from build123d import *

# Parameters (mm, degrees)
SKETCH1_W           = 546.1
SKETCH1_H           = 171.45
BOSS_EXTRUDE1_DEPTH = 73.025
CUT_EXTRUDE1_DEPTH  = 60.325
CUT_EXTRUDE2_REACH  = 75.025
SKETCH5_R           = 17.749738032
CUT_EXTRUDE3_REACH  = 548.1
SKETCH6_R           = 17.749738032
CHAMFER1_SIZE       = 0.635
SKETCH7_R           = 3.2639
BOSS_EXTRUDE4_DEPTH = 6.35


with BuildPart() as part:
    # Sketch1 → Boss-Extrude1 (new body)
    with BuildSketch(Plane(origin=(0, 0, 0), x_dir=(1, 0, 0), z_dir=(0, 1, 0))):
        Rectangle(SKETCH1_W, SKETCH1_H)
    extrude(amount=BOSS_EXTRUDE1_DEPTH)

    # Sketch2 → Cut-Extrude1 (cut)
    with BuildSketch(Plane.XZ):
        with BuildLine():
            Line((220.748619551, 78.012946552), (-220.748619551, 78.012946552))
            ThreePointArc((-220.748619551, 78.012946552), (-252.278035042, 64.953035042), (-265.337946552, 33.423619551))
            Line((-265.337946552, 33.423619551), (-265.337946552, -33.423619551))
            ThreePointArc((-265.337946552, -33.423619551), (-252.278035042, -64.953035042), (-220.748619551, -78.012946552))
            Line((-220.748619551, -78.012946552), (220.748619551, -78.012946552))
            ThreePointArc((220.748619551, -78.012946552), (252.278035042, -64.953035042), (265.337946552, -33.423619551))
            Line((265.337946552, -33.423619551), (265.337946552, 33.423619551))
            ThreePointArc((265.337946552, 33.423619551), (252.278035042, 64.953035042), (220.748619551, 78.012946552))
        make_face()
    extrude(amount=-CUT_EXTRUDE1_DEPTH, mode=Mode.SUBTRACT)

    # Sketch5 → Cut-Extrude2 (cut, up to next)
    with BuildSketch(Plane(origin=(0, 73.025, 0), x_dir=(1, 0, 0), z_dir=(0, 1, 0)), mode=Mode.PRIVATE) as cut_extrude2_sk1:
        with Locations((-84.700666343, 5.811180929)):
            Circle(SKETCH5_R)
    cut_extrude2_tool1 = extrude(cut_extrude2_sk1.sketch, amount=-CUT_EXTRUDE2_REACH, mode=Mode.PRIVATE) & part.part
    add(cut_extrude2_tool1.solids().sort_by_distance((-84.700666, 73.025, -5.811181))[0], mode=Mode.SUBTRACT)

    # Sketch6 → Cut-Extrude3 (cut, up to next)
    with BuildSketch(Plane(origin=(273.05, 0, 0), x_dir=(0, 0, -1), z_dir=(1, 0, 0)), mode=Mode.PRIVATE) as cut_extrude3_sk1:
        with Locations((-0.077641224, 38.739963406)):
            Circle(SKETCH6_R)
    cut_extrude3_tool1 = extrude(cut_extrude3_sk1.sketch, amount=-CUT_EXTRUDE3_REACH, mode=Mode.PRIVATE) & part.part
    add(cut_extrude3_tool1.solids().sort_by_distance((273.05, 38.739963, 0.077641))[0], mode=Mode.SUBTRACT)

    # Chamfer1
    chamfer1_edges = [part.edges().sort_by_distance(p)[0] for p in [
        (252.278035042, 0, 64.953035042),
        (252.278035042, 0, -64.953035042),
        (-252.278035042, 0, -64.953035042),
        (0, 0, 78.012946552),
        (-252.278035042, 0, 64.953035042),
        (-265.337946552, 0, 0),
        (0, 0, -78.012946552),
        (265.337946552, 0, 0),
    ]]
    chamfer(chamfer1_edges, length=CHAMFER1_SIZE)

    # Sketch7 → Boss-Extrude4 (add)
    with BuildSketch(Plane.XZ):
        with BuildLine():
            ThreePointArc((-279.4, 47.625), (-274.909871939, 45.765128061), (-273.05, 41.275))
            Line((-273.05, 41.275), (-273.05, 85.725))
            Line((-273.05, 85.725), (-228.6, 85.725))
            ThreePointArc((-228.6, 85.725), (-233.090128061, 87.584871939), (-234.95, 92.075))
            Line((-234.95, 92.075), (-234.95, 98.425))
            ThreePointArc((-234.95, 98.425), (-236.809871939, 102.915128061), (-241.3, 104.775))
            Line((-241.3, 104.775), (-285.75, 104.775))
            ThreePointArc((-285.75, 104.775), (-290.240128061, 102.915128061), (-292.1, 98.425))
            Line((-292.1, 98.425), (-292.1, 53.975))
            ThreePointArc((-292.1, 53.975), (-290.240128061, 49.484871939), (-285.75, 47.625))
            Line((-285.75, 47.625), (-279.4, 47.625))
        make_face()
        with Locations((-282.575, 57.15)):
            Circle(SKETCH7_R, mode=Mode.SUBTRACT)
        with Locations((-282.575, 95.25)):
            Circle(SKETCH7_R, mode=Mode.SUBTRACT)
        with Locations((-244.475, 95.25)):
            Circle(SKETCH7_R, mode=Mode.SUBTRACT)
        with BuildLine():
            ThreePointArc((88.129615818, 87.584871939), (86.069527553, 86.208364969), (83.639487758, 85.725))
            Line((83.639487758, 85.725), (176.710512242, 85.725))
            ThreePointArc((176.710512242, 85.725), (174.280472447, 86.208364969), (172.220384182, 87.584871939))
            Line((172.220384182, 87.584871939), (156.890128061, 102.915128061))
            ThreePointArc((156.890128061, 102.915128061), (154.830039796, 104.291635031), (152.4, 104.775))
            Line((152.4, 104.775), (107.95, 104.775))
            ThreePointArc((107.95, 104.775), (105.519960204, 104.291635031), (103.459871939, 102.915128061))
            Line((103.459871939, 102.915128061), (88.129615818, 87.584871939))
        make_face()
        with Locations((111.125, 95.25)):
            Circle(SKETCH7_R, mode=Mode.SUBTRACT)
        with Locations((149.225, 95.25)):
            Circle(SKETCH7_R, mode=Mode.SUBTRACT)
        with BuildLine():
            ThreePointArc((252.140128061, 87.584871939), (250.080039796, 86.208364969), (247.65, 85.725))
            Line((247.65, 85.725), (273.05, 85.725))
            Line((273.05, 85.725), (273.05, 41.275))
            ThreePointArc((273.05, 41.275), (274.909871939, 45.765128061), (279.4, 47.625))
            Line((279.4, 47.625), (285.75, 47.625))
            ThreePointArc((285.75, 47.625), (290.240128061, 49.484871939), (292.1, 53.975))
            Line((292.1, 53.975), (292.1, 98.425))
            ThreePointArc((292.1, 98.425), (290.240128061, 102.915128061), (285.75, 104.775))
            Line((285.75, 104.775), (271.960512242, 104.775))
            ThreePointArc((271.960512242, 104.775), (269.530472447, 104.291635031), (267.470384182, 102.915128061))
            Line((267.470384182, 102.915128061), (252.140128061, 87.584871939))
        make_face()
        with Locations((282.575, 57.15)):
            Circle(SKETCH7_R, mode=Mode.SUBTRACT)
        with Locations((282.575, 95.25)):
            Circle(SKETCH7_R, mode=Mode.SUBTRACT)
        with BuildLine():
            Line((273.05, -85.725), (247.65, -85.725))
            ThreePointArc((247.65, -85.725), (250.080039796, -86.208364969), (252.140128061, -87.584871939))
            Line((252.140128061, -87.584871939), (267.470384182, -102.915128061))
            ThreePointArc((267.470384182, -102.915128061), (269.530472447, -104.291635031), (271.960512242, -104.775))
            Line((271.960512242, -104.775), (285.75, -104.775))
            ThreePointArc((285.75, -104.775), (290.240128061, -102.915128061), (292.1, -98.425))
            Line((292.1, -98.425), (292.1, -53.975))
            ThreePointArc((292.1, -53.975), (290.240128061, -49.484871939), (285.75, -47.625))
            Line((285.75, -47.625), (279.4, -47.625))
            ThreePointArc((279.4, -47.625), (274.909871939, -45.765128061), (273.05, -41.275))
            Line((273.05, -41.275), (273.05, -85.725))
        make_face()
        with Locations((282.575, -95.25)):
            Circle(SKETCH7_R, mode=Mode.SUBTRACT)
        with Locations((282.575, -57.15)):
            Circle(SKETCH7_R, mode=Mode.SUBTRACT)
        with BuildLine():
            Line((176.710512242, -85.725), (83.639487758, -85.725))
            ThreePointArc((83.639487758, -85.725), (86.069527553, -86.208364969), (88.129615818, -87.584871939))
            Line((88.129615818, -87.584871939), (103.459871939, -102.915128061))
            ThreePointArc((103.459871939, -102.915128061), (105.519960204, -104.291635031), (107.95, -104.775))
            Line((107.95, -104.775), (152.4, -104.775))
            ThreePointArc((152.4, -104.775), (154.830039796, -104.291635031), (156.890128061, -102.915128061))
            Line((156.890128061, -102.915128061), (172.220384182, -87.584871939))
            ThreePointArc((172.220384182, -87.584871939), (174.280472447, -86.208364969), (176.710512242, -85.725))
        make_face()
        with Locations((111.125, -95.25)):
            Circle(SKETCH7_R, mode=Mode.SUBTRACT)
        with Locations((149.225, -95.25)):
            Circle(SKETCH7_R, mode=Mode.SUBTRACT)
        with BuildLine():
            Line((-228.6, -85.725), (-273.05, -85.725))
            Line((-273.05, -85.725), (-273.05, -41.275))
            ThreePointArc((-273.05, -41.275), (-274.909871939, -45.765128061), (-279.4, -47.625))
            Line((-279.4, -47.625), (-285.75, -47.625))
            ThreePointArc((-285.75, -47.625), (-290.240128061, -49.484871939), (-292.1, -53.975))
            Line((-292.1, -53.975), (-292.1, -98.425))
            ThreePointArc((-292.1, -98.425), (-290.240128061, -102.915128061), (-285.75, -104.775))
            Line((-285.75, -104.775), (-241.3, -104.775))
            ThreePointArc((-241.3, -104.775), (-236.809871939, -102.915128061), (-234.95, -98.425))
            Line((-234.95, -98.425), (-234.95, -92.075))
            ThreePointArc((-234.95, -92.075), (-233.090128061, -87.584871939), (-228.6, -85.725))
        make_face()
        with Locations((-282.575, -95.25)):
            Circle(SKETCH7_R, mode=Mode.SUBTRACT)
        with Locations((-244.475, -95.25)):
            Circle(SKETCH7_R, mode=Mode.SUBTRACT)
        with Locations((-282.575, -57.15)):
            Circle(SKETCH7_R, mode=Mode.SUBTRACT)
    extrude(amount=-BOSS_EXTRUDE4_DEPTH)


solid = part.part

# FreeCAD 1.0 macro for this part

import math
import FreeCAD as App
import Part
import Sketcher

V = App.Vector
Q = App.Units.Quantity


def edges_at(feature, points):
    """Names of the edges that pass closest to the given points."""
    edges = feature.Shape.Edges
    near = lambda p: min(range(len(edges)), key=lambda i: edges[i].distToShape(Part.Vertex(*p))[0])
    return sorted({f"Edge{near(p) + 1}" for p in points})


def add_polygon(sketch, points):
    """Adds a closed chain of lines whose ends are joined by coincident constraints."""
    first, n = sketch.GeometryCount, len(points)
    for a, b in zip(points, points[1:] + points[:1]):
        sketch.addGeometry(Part.LineSegment(App.Vector(*a, 0), App.Vector(*b, 0)), False)
    for i in range(n):
        sketch.addConstraint(Sketcher.Constraint("Coincident", first + i, 2, first + (i + 1) % n, 1))

doc = App.newDocument("Part")
params = doc.addObject("Spreadsheet::Sheet", "Params")
for row, (alias, value) in enumerate([
    ("sketch1_width", "21.5 in"),
    ("sketch1_height", "6.75 in"),
    ("pad1_length", "2.875 in"),
    ("pocket1_length", "2.375 in"),
    ("chamfer_size", "0.025 in"),
    ("sketch5_width", "1 in"),
    ("sketch5_radius", "0.25 in"),
    ("sketch5_diameter", "0.257 in"),
    ("pad2_length", "0.25 in"),
], start=1):
    params.set(f"A{row}", alias)
    params.set(f"B{row}", "=" + value)
    params.setAlias(f"B{row}", alias)

body = doc.addObject("PartDesign::Body", "Body")

# Sketch on XZ plane
sketch1 = body.newObject("Sketcher::SketchObject", "Sketch")
sketch1.AttachmentSupport = (doc.getObject("XZ_Plane"), [""])
sketch1.MapMode = "FlatFace"
add_polygon(sketch1, [(-273.05, -85.725), (-273.05, 85.725), (273.05, 85.725), (273.05, -85.725)])  # lines 0-3
sketch1.addConstraint([
    Sketcher.Constraint("Vertical", 0),
    Sketcher.Constraint("Horizontal", 1),
    Sketcher.Constraint("Vertical", 2),
    Sketcher.Constraint("Horizontal", 3),
    Sketcher.Constraint("Symmetric", 0, 2, 2, 2, -1, 1),
    Sketcher.Constraint("DistanceX", 1, 1, 1, 2, Q("21.5 in")),
    Sketcher.Constraint("DistanceY", 0, 1, 0, 2, Q("6.75 in")),
])
sketch1.setExpression("Constraints[9]", "Params.sketch1_width")
sketch1.setExpression("Constraints[10]", "Params.sketch1_height")
pad1 = body.newObject("PartDesign::Pad", "Pad")
pad1.Profile = sketch1
pad1.setExpression("Length", "Params.pad1_length")
pad1.Reversed = True

# Sketch on XZ plane
sketch2 = body.newObject("Sketcher::SketchObject", "Sketch001")
sketch2.AttachmentSupport = (doc.getObject("XZ_Plane"), [""])
sketch2.MapMode = "FlatFace"
sketch2.addGeometry([
    Part.LineSegment(V(220.74862, 78.012947, 0), V(-220.74862, 78.012947, 0)),  # 0
    Part.ArcOfCircle(Part.Circle(V(-220.74862, 33.42362, 0), V(0, 0, 1), 44.589327), math.radians(90), math.radians(180)),  # 1
    Part.LineSegment(V(-265.337947, 33.42362, 0), V(-265.337947, -33.42362, 0)),  # 2
    Part.ArcOfCircle(Part.Circle(V(-220.74862, -33.42362, 0), V(0, 0, 1), 44.589327), math.radians(180), math.radians(270)),  # 3
    Part.LineSegment(V(-220.74862, -78.012947, 0), V(220.74862, -78.012947, 0)),  # 4
    Part.ArcOfCircle(Part.Circle(V(220.74862, -33.42362, 0), V(0, 0, 1), 44.589327), math.radians(-90), math.radians(0)),  # 5
    Part.LineSegment(V(265.337947, -33.42362, 0), V(265.337947, 33.42362, 0)),  # 6
    Part.ArcOfCircle(Part.Circle(V(220.74862, 33.42362, 0), V(0, 0, 1), 44.589327), math.radians(0), math.radians(90)),  # 7
], False)
sketch2.addConstraint([
    Sketcher.Constraint("Tangent", 0, 2, 1, 1),
    Sketcher.Constraint("Tangent", 1, 2, 2, 1),
    Sketcher.Constraint("Tangent", 2, 2, 3, 1),
    Sketcher.Constraint("Tangent", 3, 2, 4, 1),
    Sketcher.Constraint("Tangent", 4, 2, 5, 1),
    Sketcher.Constraint("Tangent", 5, 2, 6, 1),
    Sketcher.Constraint("Tangent", 6, 2, 7, 1),
    Sketcher.Constraint("Tangent", 7, 2, 0, 1),
    Sketcher.Constraint("Horizontal", 0),
    Sketcher.Constraint("Vertical", 2),
    Sketcher.Constraint("Horizontal", 4),
    Sketcher.Constraint("Vertical", 6),
    Sketcher.Constraint("Equal", 1, 3),
    Sketcher.Constraint("Equal", 3, 5),
    Sketcher.Constraint("Equal", 5, 7),
    Sketcher.Constraint("Symmetric", 1, 3, 5, 3, -1, 1),
    Sketcher.Constraint("Radius", 1, 44.589327),
    Sketcher.Constraint("DistanceX", 0, 2, 0, 1, 441.497239),
    Sketcher.Constraint("DistanceY", 2, 2, 2, 1, 66.847239),
])
pocket1 = body.newObject("PartDesign::Pocket", "Pocket")
pocket1.Profile = sketch2
pocket1.setExpression("Length", "Params.pocket1_length")

# Sketch on XZ plane
sketch3 = body.newObject("Sketcher::SketchObject", "Sketch002")
sketch3.AttachmentSupport = (doc.getObject("XZ_Plane"), [""])
sketch3.MapMode = "FlatFace"
sketch3.AttachmentOffset = App.Placement(V(0, 0, -2.875 * 25.4), App.Rotation())
sketch3.addGeometry(Part.Circle(V(-84.700666, -5.811181, 0), V(0, 0, 1), 17.749738), False)
sketch3.addConstraint([
    Sketcher.Constraint("Diameter", 0, 35.499476),
    Sketcher.Constraint("DistanceY", 0, 3, -1, 1, 5.811181),
    Sketcher.Constraint("DistanceX", 0, 3, -1, 1, 84.700666),
])
pocket2 = body.newObject("PartDesign::Pocket", "Pocket001")
pocket2.Profile = sketch3
pocket2.Type = "UpToFirst"
pocket2.Reversed = True

# Sketch on YZ plane
sketch4 = body.newObject("Sketcher::SketchObject", "Sketch003")
sketch4.AttachmentSupport = (doc.getObject("YZ_Plane"), [""])
sketch4.MapMode = "FlatFace"
sketch4.AttachmentOffset = App.Placement(V(0, 0, 10.75 * 25.4), App.Rotation())
sketch4.addGeometry(Part.Circle(V(38.739963, 0.077641, 0), V(0, 0, 1), 17.749738), False)
sketch4.addConstraint([
    Sketcher.Constraint("Diameter", 0, 35.499476),
    Sketcher.Constraint("DistanceY", -1, 1, 0, 3, 0.077641),
    Sketcher.Constraint("DistanceX", -1, 1, 0, 3, 38.739963),
])
pocket3 = body.newObject("PartDesign::Pocket", "Pocket002")
pocket3.Profile = sketch4
pocket3.Type = "UpToFirst"
doc.recompute()

chamfer = body.newObject("PartDesign::Chamfer", "Chamfer")
chamfer.Base = (pocket3, edges_at(pocket3, [
    (252.278, 0, 64.953),
    (252.278, 0, -64.953),
    (-252.278, 0, -64.953),
    (0, 0, 78.013),
    (-252.278, 0, 64.953),
    (-265.338, 0, 0),
    (0, 0, -78.013),
    (265.338, 0, 0),
]))
chamfer.setExpression("Size", "Params.chamfer_size")

# Sketch on XZ plane
sketch5 = body.newObject("Sketcher::SketchObject", "Sketch004")
sketch5.AttachmentSupport = (doc.getObject("XZ_Plane"), [""])
sketch5.MapMode = "FlatFace"
sketch5.addGeometry([
    Part.ArcOfCircle(Part.Circle(V(-279.4, 41.275, 0), V(0, 0, 1), 6.35), math.radians(0), math.radians(90)),  # 0
    Part.LineSegment(V(-273.05, 41.275, 0), V(-273.05, 85.725, 0)),  # 1
    Part.LineSegment(V(-273.05, 85.725, 0), V(-228.6, 85.725, 0)),  # 2
    Part.ArcOfCircle(Part.Circle(V(-228.6, 92.075, 0), V(0, 0, 1), 6.35), math.radians(180), math.radians(270)),  # 3
    Part.LineSegment(V(-234.95, 92.075, 0), V(-234.95, 98.425, 0)),  # 4
    Part.ArcOfCircle(Part.Circle(V(-241.3, 98.425, 0), V(0, 0, 1), 6.35), math.radians(0), math.radians(90)),  # 5
    Part.LineSegment(V(-241.3, 104.775, 0), V(-285.75, 104.775, 0)),  # 6
    Part.ArcOfCircle(Part.Circle(V(-285.75, 98.425, 0), V(0, 0, 1), 6.35), math.radians(90), math.radians(180)),  # 7
    Part.LineSegment(V(-292.1, 98.425, 0), V(-292.1, 53.975, 0)),  # 8
    Part.ArcOfCircle(Part.Circle(V(-285.75, 53.975, 0), V(0, 0, 1), 6.35), math.radians(180), math.radians(270)),  # 9
    Part.LineSegment(V(-285.75, 47.625, 0), V(-279.4, 47.625, 0)),  # 10
    Part.Circle(V(-282.575, 57.15, 0), V(0, 0, 1), 3.2639),  # 11
    Part.Circle(V(-282.575, 95.25, 0), V(0, 0, 1), 3.2639),  # 12
    Part.Circle(V(-244.475, 95.25, 0), V(0, 0, 1), 3.2639),  # 13
    Part.ArcOfCircle(Part.Circle(V(83.639488, 92.075, 0), V(0, 0, 1), 6.35), math.radians(-90), math.radians(-45)),  # 14
    Part.LineSegment(V(83.639488, 85.725, 0), V(176.710512, 85.725, 0)),  # 15
    Part.ArcOfCircle(Part.Circle(V(176.710512, 92.075, 0), V(0, 0, 1), 6.35), math.radians(-135), math.radians(-90)),  # 16
    Part.LineSegment(V(172.220384, 87.584872, 0), V(156.890128, 102.915128, 0)),  # 17
    Part.ArcOfCircle(Part.Circle(V(152.4, 98.425, 0), V(0, 0, 1), 6.35), math.radians(45), math.radians(90)),  # 18
    Part.LineSegment(V(152.4, 104.775, 0), V(107.95, 104.775, 0)),  # 19
    Part.ArcOfCircle(Part.Circle(V(107.95, 98.425, 0), V(0, 0, 1), 6.35), math.radians(90), math.radians(135)),  # 20
    Part.LineSegment(V(103.459872, 102.915128, 0), V(88.129616, 87.584872, 0)),  # 21
    Part.Circle(V(111.125, 95.25, 0), V(0, 0, 1), 3.2639),  # 22
    Part.Circle(V(149.225, 95.25, 0), V(0, 0, 1), 3.2639),  # 23
    Part.ArcOfCircle(Part.Circle(V(247.65, 92.075, 0), V(0, 0, 1), 6.35), math.radians(-90), math.radians(-45)),  # 24
    Part.LineSegment(V(247.65, 85.725, 0), V(273.05, 85.725, 0)),  # 25
    Part.LineSegment(V(273.05, 85.725, 0), V(273.05, 41.275, 0)),  # 26
    Part.ArcOfCircle(Part.Circle(V(279.4, 41.275, 0), V(0, 0, 1), 6.35), math.radians(90), math.radians(180)),  # 27
    Part.LineSegment(V(279.4, 47.625, 0), V(285.75, 47.625, 0)),  # 28
    Part.ArcOfCircle(Part.Circle(V(285.75, 53.975, 0), V(0, 0, 1), 6.35), math.radians(-90), math.radians(0)),  # 29
    Part.LineSegment(V(292.1, 53.975, 0), V(292.1, 98.425, 0)),  # 30
    Part.ArcOfCircle(Part.Circle(V(285.75, 98.425, 0), V(0, 0, 1), 6.35), math.radians(0), math.radians(90)),  # 31
    Part.LineSegment(V(285.75, 104.775, 0), V(271.960512, 104.775, 0)),  # 32
    Part.ArcOfCircle(Part.Circle(V(271.960512, 98.425, 0), V(0, 0, 1), 6.35), math.radians(90), math.radians(135)),  # 33
    Part.LineSegment(V(267.470384, 102.915128, 0), V(252.140128, 87.584872, 0)),  # 34
    Part.Circle(V(282.575, 57.15, 0), V(0, 0, 1), 3.2639),  # 35
    Part.Circle(V(282.575, 95.25, 0), V(0, 0, 1), 3.2639),  # 36
    Part.LineSegment(V(273.05, -85.725, 0), V(247.65, -85.725, 0)),  # 37
    Part.ArcOfCircle(Part.Circle(V(247.65, -92.075, 0), V(0, 0, 1), 6.35), math.radians(45), math.radians(90)),  # 38
    Part.LineSegment(V(252.140128, -87.584872, 0), V(267.470384, -102.915128, 0)),  # 39
    Part.ArcOfCircle(Part.Circle(V(271.960512, -98.425, 0), V(0, 0, 1), 6.35), math.radians(-135), math.radians(-90)),  # 40
    Part.LineSegment(V(271.960512, -104.775, 0), V(285.75, -104.775, 0)),  # 41
    Part.ArcOfCircle(Part.Circle(V(285.75, -98.425, 0), V(0, 0, 1), 6.35), math.radians(-90), math.radians(0)),  # 42
    Part.LineSegment(V(292.1, -98.425, 0), V(292.1, -53.975, 0)),  # 43
    Part.ArcOfCircle(Part.Circle(V(285.75, -53.975, 0), V(0, 0, 1), 6.35), math.radians(0), math.radians(90)),  # 44
    Part.LineSegment(V(285.75, -47.625, 0), V(279.4, -47.625, 0)),  # 45
    Part.ArcOfCircle(Part.Circle(V(279.4, -41.275, 0), V(0, 0, 1), 6.35), math.radians(180), math.radians(270)),  # 46
    Part.LineSegment(V(273.05, -41.275, 0), V(273.05, -85.725, 0)),  # 47
    Part.Circle(V(282.575, -95.25, 0), V(0, 0, 1), 3.2639),  # 48
    Part.Circle(V(282.575, -57.15, 0), V(0, 0, 1), 3.2639),  # 49
    Part.LineSegment(V(176.710512, -85.725, 0), V(83.639488, -85.725, 0)),  # 50
    Part.ArcOfCircle(Part.Circle(V(83.639488, -92.075, 0), V(0, 0, 1), 6.35), math.radians(45), math.radians(90)),  # 51
    Part.LineSegment(V(88.129616, -87.584872, 0), V(103.459872, -102.915128, 0)),  # 52
    Part.ArcOfCircle(Part.Circle(V(107.95, -98.425, 0), V(0, 0, 1), 6.35), math.radians(-135), math.radians(-90)),  # 53
    Part.LineSegment(V(107.95, -104.775, 0), V(152.4, -104.775, 0)),  # 54
    Part.ArcOfCircle(Part.Circle(V(152.4, -98.425, 0), V(0, 0, 1), 6.35), math.radians(-90), math.radians(-45)),  # 55
    Part.LineSegment(V(156.890128, -102.915128, 0), V(172.220384, -87.584872, 0)),  # 56
    Part.ArcOfCircle(Part.Circle(V(176.710512, -92.075, 0), V(0, 0, 1), 6.35), math.radians(90), math.radians(135)),  # 57
    Part.Circle(V(111.125, -95.25, 0), V(0, 0, 1), 3.2639),  # 58
    Part.Circle(V(149.225, -95.25, 0), V(0, 0, 1), 3.2639),  # 59
    Part.LineSegment(V(-228.6, -85.725, 0), V(-273.05, -85.725, 0)),  # 60
    Part.LineSegment(V(-273.05, -85.725, 0), V(-273.05, -41.275, 0)),  # 61
    Part.ArcOfCircle(Part.Circle(V(-279.4, -41.275, 0), V(0, 0, 1), 6.35), math.radians(-90), math.radians(0)),  # 62
    Part.LineSegment(V(-279.4, -47.625, 0), V(-285.75, -47.625, 0)),  # 63
    Part.ArcOfCircle(Part.Circle(V(-285.75, -53.975, 0), V(0, 0, 1), 6.35), math.radians(90), math.radians(180)),  # 64
    Part.LineSegment(V(-292.1, -53.975, 0), V(-292.1, -98.425, 0)),  # 65
    Part.ArcOfCircle(Part.Circle(V(-285.75, -98.425, 0), V(0, 0, 1), 6.35), math.radians(180), math.radians(270)),  # 66
    Part.LineSegment(V(-285.75, -104.775, 0), V(-241.3, -104.775, 0)),  # 67
    Part.ArcOfCircle(Part.Circle(V(-241.3, -98.425, 0), V(0, 0, 1), 6.35), math.radians(-90), math.radians(0)),  # 68
    Part.LineSegment(V(-234.95, -98.425, 0), V(-234.95, -92.075, 0)),  # 69
    Part.ArcOfCircle(Part.Circle(V(-228.6, -92.075, 0), V(0, 0, 1), 6.35), math.radians(90), math.radians(180)),  # 70
    Part.Circle(V(-282.575, -95.25, 0), V(0, 0, 1), 3.2639),  # 71
    Part.Circle(V(-244.475, -95.25, 0), V(0, 0, 1), 3.2639),  # 72
    Part.Circle(V(-282.575, -57.15, 0), V(0, 0, 1), 3.2639),  # 73
], False)
sketch5.addConstraint([
    Sketcher.Constraint("Tangent", 0, 1, 1, 1),
    Sketcher.Constraint("Coincident", 1, 2, 2, 1),
    Sketcher.Constraint("Tangent", 2, 2, 3, 2),
    Sketcher.Constraint("Tangent", 3, 1, 4, 1),
    Sketcher.Constraint("Tangent", 4, 2, 5, 1),
    Sketcher.Constraint("Tangent", 5, 2, 6, 1),
    Sketcher.Constraint("Tangent", 6, 2, 7, 1),
    Sketcher.Constraint("Tangent", 7, 2, 8, 1),
    Sketcher.Constraint("Tangent", 8, 2, 9, 1),
    Sketcher.Constraint("Tangent", 9, 2, 10, 1),
    Sketcher.Constraint("Tangent", 10, 2, 0, 2),
    Sketcher.Constraint("Tangent", 14, 1, 15, 1),
    Sketcher.Constraint("Tangent", 15, 2, 16, 2),
    Sketcher.Constraint("Tangent", 16, 1, 17, 1),
    Sketcher.Constraint("Tangent", 17, 2, 18, 1),
    Sketcher.Constraint("Tangent", 18, 2, 19, 1),
    Sketcher.Constraint("Tangent", 19, 2, 20, 1),
    Sketcher.Constraint("Tangent", 20, 2, 21, 1),
    Sketcher.Constraint("Tangent", 21, 2, 14, 2),
    Sketcher.Constraint("Tangent", 24, 1, 25, 1),
    Sketcher.Constraint("Coincident", 25, 2, 26, 1),
    Sketcher.Constraint("Tangent", 26, 2, 27, 2),
    Sketcher.Constraint("Tangent", 27, 1, 28, 1),
    Sketcher.Constraint("Tangent", 28, 2, 29, 1),
    Sketcher.Constraint("Tangent", 29, 2, 30, 1),
    Sketcher.Constraint("Tangent", 30, 2, 31, 1),
    Sketcher.Constraint("Tangent", 31, 2, 32, 1),
    Sketcher.Constraint("Tangent", 32, 2, 33, 1),
    Sketcher.Constraint("Tangent", 33, 2, 34, 1),
    Sketcher.Constraint("Tangent", 34, 2, 24, 2),
    Sketcher.Constraint("Tangent", 37, 2, 38, 2),
    Sketcher.Constraint("Tangent", 38, 1, 39, 1),
    Sketcher.Constraint("Tangent", 39, 2, 40, 1),
    Sketcher.Constraint("Tangent", 40, 2, 41, 1),
    Sketcher.Constraint("Tangent", 41, 2, 42, 1),
    Sketcher.Constraint("Tangent", 42, 2, 43, 1),
    Sketcher.Constraint("Tangent", 43, 2, 44, 1),
    Sketcher.Constraint("Tangent", 44, 2, 45, 1),
    Sketcher.Constraint("Tangent", 45, 2, 46, 2),
    Sketcher.Constraint("Tangent", 46, 1, 47, 1),
    Sketcher.Constraint("Coincident", 47, 2, 37, 1),
    Sketcher.Constraint("Tangent", 50, 2, 51, 2),
    Sketcher.Constraint("Tangent", 51, 1, 52, 1),
    Sketcher.Constraint("Tangent", 52, 2, 53, 1),
    Sketcher.Constraint("Tangent", 53, 2, 54, 1),
    Sketcher.Constraint("Tangent", 54, 2, 55, 1),
    Sketcher.Constraint("Tangent", 55, 2, 56, 1),
    Sketcher.Constraint("Tangent", 56, 2, 57, 2),
    Sketcher.Constraint("Tangent", 57, 1, 50, 1),
    Sketcher.Constraint("Coincident", 60, 2, 61, 1),
    Sketcher.Constraint("Tangent", 61, 2, 62, 2),
    Sketcher.Constraint("Tangent", 62, 1, 63, 1),
    Sketcher.Constraint("Tangent", 63, 2, 64, 1),
    Sketcher.Constraint("Tangent", 64, 2, 65, 1),
    Sketcher.Constraint("Tangent", 65, 2, 66, 1),
    Sketcher.Constraint("Tangent", 66, 2, 67, 1),
    Sketcher.Constraint("Tangent", 67, 2, 68, 1),
    Sketcher.Constraint("Tangent", 68, 2, 69, 1),
    Sketcher.Constraint("Tangent", 69, 2, 70, 2),
    Sketcher.Constraint("Tangent", 70, 1, 60, 1),
    Sketcher.Constraint("Vertical", 1),
    Sketcher.Constraint("Horizontal", 2),
    Sketcher.Constraint("Vertical", 4),
    Sketcher.Constraint("Horizontal", 6),
    Sketcher.Constraint("Vertical", 8),
    Sketcher.Constraint("Horizontal", 10),
    Sketcher.Constraint("Horizontal", 15),
    Sketcher.Constraint("Horizontal", 19),
    Sketcher.Constraint("Horizontal", 25),
    Sketcher.Constraint("Vertical", 26),
    Sketcher.Constraint("Horizontal", 28),
    Sketcher.Constraint("Vertical", 30),
    Sketcher.Constraint("Horizontal", 32),
    Sketcher.Constraint("Horizontal", 37),
    Sketcher.Constraint("Horizontal", 41),
    Sketcher.Constraint("Vertical", 43),
    Sketcher.Constraint("Horizontal", 45),
    Sketcher.Constraint("Vertical", 47),
    Sketcher.Constraint("Horizontal", 50),
    Sketcher.Constraint("Horizontal", 54),
    Sketcher.Constraint("Horizontal", 60),
    Sketcher.Constraint("Vertical", 61),
    Sketcher.Constraint("Horizontal", 63),
    Sketcher.Constraint("Vertical", 65),
    Sketcher.Constraint("Horizontal", 67),
    Sketcher.Constraint("Vertical", 69),
    Sketcher.Constraint("Equal", 0, 3),
    Sketcher.Constraint("Equal", 3, 5),
    Sketcher.Constraint("Equal", 5, 7),
    Sketcher.Constraint("Equal", 7, 9),
    Sketcher.Constraint("Equal", 11, 12),
    Sketcher.Constraint("Equal", 12, 13),
    Sketcher.Constraint("Equal", 9, 14),
    Sketcher.Constraint("Equal", 14, 16),
    Sketcher.Constraint("Equal", 16, 18),
    Sketcher.Constraint("Equal", 18, 20),
    Sketcher.Constraint("Equal", 13, 22),
    Sketcher.Constraint("Equal", 22, 23),
    Sketcher.Constraint("Equal", 20, 24),
    Sketcher.Constraint("Equal", 24, 27),
    Sketcher.Constraint("Equal", 27, 29),
    Sketcher.Constraint("Equal", 29, 31),
    Sketcher.Constraint("Equal", 31, 33),
    Sketcher.Constraint("Equal", 23, 35),
    Sketcher.Constraint("Equal", 35, 36),
    Sketcher.Constraint("Equal", 33, 38),
    Sketcher.Constraint("Equal", 38, 40),
    Sketcher.Constraint("Equal", 40, 42),
    Sketcher.Constraint("Equal", 42, 44),
    Sketcher.Constraint("Equal", 44, 46),
    Sketcher.Constraint("Equal", 36, 48),
    Sketcher.Constraint("Equal", 48, 49),
    Sketcher.Constraint("Equal", 46, 51),
    Sketcher.Constraint("Equal", 51, 53),
    Sketcher.Constraint("Equal", 53, 55),
    Sketcher.Constraint("Equal", 55, 57),
    Sketcher.Constraint("Equal", 49, 58),
    Sketcher.Constraint("Equal", 58, 59),
    Sketcher.Constraint("Equal", 57, 62),
    Sketcher.Constraint("Equal", 62, 64),
    Sketcher.Constraint("Equal", 64, 66),
    Sketcher.Constraint("Equal", 66, 68),
    Sketcher.Constraint("Equal", 68, 70),
    Sketcher.Constraint("Equal", 59, 71),
    Sketcher.Constraint("Equal", 71, 72),
    Sketcher.Constraint("Equal", 72, 73),
    Sketcher.Constraint("Symmetric", 7, 3, 42, 3, -1, 1),
    Sketcher.Constraint("Symmetric", 0, 3, 46, 3, -1, 1),
    Sketcher.Constraint("Symmetric", 12, 3, 48, 3, -1, 1),
    Sketcher.Constraint("Symmetric", 11, 3, 49, 3, -1, 1),
    Sketcher.Constraint("Symmetric", 27, 3, 62, 3, -1, 1),
    Sketcher.Constraint("Symmetric", 31, 3, 66, 3, -1, 1),
    Sketcher.Constraint("Symmetric", 36, 3, 71, 3, -1, 1),
    Sketcher.Constraint("Symmetric", 35, 3, 73, 3, -1, 1),
    Sketcher.Constraint("Symmetric", 0, 3, 27, 3, -2),
    Sketcher.Constraint("Symmetric", 7, 3, 31, 3, -2),
    Sketcher.Constraint("Symmetric", 11, 3, 35, 3, -2),
    Sketcher.Constraint("Symmetric", 12, 3, 36, 3, -2),
    Sketcher.Constraint("Symmetric", 24, 3, 38, 3, -1),
    Sketcher.Constraint("Symmetric", 14, 3, 51, 3, -1),
    Sketcher.Constraint("Symmetric", 20, 3, 53, 3, -1),
    Sketcher.Constraint("Symmetric", 22, 3, 58, 3, -1),
    Sketcher.Constraint("Symmetric", 23, 3, 59, 3, -1),
    Sketcher.Constraint("Symmetric", 3, 3, 70, 3, -1),
    Sketcher.Constraint("Symmetric", 13, 3, 72, 3, -1),
    Sketcher.Constraint("Symmetric", 17, 2, 55, 2, -1),
    Sketcher.Constraint("Perpendicular", 17, 21),
    Sketcher.Constraint("Parallel", 21, 34),
    Sketcher.Constraint("Perpendicular", 34, 39),
    Sketcher.Constraint("Parallel", 39, 52),
    Sketcher.Constraint("Horizontal", 12, 3, 13, 3),
    Sketcher.Constraint("Horizontal", 3, 3, 14, 3),
    Sketcher.Constraint("Horizontal", 7, 3, 18, 3),
    Sketcher.Constraint("Horizontal", 13, 3, 22, 3),
    Sketcher.Constraint("Horizontal", 22, 3, 23, 3),
    Sketcher.Constraint("Horizontal", 16, 3, 24, 3),
    Sketcher.Constraint("Vertical", 11, 3, 12, 3),
    Sketcher.Constraint("Equal", 2, 6),
    Sketcher.Constraint("Equal", 6, 19),
    Sketcher.Constraint("Equal", 67, 1),
    Sketcher.Constraint("Equal", 63, 4),
    Sketcher.Constraint("DistanceX", 25, 1, 25, 2, Q("1 in")),
    Sketcher.Constraint("Radius", 0, Q("0.25 in")),
    Sketcher.Constraint("Diameter", 11, Q("0.257 in")),
    Sketcher.Constraint("DistanceX", 0, 3, -1, 1, Q("11 in")),
    Sketcher.Constraint("DistanceX", 3, 3, -1, 1, Q("9 in")),
    Sketcher.Constraint("DistanceX", -1, 1, 18, 3, Q("6 in")),
    Sketcher.Constraint("DistanceY", -1, 1, 11, 3, Q("2.25 in")),
    Sketcher.Constraint("DistanceY", -1, 1, 12, 3, Q("3.75 in")),
    Sketcher.Constraint("DistanceY", -1, 1, 0, 3, Q("1.625 in")),
    Sketcher.Constraint("DistanceX", 11, 3, -1, 1, Q("11.125 in")),
    Sketcher.Constraint("DistanceX", 13, 3, -1, 1, Q("9.625 in")),
    Sketcher.Constraint("DistanceX", -1, 1, 22, 3, Q("4.375 in")),
    Sketcher.Constraint("DistanceX", -1, 1, 23, 3, Q("5.875 in")),
])
sketch5.setExpression("Constraints[161]", "Params.sketch5_width")
sketch5.setExpression("Constraints[162]", "Params.sketch5_radius")
sketch5.setExpression("Constraints[163]", "Params.sketch5_diameter")
pad2 = body.newObject("PartDesign::Pad", "Pad001")
pad2.Profile = sketch5
pad2.setExpression("Length", "Params.pad2_length")
pad2.Reversed = True

doc.recompute()
